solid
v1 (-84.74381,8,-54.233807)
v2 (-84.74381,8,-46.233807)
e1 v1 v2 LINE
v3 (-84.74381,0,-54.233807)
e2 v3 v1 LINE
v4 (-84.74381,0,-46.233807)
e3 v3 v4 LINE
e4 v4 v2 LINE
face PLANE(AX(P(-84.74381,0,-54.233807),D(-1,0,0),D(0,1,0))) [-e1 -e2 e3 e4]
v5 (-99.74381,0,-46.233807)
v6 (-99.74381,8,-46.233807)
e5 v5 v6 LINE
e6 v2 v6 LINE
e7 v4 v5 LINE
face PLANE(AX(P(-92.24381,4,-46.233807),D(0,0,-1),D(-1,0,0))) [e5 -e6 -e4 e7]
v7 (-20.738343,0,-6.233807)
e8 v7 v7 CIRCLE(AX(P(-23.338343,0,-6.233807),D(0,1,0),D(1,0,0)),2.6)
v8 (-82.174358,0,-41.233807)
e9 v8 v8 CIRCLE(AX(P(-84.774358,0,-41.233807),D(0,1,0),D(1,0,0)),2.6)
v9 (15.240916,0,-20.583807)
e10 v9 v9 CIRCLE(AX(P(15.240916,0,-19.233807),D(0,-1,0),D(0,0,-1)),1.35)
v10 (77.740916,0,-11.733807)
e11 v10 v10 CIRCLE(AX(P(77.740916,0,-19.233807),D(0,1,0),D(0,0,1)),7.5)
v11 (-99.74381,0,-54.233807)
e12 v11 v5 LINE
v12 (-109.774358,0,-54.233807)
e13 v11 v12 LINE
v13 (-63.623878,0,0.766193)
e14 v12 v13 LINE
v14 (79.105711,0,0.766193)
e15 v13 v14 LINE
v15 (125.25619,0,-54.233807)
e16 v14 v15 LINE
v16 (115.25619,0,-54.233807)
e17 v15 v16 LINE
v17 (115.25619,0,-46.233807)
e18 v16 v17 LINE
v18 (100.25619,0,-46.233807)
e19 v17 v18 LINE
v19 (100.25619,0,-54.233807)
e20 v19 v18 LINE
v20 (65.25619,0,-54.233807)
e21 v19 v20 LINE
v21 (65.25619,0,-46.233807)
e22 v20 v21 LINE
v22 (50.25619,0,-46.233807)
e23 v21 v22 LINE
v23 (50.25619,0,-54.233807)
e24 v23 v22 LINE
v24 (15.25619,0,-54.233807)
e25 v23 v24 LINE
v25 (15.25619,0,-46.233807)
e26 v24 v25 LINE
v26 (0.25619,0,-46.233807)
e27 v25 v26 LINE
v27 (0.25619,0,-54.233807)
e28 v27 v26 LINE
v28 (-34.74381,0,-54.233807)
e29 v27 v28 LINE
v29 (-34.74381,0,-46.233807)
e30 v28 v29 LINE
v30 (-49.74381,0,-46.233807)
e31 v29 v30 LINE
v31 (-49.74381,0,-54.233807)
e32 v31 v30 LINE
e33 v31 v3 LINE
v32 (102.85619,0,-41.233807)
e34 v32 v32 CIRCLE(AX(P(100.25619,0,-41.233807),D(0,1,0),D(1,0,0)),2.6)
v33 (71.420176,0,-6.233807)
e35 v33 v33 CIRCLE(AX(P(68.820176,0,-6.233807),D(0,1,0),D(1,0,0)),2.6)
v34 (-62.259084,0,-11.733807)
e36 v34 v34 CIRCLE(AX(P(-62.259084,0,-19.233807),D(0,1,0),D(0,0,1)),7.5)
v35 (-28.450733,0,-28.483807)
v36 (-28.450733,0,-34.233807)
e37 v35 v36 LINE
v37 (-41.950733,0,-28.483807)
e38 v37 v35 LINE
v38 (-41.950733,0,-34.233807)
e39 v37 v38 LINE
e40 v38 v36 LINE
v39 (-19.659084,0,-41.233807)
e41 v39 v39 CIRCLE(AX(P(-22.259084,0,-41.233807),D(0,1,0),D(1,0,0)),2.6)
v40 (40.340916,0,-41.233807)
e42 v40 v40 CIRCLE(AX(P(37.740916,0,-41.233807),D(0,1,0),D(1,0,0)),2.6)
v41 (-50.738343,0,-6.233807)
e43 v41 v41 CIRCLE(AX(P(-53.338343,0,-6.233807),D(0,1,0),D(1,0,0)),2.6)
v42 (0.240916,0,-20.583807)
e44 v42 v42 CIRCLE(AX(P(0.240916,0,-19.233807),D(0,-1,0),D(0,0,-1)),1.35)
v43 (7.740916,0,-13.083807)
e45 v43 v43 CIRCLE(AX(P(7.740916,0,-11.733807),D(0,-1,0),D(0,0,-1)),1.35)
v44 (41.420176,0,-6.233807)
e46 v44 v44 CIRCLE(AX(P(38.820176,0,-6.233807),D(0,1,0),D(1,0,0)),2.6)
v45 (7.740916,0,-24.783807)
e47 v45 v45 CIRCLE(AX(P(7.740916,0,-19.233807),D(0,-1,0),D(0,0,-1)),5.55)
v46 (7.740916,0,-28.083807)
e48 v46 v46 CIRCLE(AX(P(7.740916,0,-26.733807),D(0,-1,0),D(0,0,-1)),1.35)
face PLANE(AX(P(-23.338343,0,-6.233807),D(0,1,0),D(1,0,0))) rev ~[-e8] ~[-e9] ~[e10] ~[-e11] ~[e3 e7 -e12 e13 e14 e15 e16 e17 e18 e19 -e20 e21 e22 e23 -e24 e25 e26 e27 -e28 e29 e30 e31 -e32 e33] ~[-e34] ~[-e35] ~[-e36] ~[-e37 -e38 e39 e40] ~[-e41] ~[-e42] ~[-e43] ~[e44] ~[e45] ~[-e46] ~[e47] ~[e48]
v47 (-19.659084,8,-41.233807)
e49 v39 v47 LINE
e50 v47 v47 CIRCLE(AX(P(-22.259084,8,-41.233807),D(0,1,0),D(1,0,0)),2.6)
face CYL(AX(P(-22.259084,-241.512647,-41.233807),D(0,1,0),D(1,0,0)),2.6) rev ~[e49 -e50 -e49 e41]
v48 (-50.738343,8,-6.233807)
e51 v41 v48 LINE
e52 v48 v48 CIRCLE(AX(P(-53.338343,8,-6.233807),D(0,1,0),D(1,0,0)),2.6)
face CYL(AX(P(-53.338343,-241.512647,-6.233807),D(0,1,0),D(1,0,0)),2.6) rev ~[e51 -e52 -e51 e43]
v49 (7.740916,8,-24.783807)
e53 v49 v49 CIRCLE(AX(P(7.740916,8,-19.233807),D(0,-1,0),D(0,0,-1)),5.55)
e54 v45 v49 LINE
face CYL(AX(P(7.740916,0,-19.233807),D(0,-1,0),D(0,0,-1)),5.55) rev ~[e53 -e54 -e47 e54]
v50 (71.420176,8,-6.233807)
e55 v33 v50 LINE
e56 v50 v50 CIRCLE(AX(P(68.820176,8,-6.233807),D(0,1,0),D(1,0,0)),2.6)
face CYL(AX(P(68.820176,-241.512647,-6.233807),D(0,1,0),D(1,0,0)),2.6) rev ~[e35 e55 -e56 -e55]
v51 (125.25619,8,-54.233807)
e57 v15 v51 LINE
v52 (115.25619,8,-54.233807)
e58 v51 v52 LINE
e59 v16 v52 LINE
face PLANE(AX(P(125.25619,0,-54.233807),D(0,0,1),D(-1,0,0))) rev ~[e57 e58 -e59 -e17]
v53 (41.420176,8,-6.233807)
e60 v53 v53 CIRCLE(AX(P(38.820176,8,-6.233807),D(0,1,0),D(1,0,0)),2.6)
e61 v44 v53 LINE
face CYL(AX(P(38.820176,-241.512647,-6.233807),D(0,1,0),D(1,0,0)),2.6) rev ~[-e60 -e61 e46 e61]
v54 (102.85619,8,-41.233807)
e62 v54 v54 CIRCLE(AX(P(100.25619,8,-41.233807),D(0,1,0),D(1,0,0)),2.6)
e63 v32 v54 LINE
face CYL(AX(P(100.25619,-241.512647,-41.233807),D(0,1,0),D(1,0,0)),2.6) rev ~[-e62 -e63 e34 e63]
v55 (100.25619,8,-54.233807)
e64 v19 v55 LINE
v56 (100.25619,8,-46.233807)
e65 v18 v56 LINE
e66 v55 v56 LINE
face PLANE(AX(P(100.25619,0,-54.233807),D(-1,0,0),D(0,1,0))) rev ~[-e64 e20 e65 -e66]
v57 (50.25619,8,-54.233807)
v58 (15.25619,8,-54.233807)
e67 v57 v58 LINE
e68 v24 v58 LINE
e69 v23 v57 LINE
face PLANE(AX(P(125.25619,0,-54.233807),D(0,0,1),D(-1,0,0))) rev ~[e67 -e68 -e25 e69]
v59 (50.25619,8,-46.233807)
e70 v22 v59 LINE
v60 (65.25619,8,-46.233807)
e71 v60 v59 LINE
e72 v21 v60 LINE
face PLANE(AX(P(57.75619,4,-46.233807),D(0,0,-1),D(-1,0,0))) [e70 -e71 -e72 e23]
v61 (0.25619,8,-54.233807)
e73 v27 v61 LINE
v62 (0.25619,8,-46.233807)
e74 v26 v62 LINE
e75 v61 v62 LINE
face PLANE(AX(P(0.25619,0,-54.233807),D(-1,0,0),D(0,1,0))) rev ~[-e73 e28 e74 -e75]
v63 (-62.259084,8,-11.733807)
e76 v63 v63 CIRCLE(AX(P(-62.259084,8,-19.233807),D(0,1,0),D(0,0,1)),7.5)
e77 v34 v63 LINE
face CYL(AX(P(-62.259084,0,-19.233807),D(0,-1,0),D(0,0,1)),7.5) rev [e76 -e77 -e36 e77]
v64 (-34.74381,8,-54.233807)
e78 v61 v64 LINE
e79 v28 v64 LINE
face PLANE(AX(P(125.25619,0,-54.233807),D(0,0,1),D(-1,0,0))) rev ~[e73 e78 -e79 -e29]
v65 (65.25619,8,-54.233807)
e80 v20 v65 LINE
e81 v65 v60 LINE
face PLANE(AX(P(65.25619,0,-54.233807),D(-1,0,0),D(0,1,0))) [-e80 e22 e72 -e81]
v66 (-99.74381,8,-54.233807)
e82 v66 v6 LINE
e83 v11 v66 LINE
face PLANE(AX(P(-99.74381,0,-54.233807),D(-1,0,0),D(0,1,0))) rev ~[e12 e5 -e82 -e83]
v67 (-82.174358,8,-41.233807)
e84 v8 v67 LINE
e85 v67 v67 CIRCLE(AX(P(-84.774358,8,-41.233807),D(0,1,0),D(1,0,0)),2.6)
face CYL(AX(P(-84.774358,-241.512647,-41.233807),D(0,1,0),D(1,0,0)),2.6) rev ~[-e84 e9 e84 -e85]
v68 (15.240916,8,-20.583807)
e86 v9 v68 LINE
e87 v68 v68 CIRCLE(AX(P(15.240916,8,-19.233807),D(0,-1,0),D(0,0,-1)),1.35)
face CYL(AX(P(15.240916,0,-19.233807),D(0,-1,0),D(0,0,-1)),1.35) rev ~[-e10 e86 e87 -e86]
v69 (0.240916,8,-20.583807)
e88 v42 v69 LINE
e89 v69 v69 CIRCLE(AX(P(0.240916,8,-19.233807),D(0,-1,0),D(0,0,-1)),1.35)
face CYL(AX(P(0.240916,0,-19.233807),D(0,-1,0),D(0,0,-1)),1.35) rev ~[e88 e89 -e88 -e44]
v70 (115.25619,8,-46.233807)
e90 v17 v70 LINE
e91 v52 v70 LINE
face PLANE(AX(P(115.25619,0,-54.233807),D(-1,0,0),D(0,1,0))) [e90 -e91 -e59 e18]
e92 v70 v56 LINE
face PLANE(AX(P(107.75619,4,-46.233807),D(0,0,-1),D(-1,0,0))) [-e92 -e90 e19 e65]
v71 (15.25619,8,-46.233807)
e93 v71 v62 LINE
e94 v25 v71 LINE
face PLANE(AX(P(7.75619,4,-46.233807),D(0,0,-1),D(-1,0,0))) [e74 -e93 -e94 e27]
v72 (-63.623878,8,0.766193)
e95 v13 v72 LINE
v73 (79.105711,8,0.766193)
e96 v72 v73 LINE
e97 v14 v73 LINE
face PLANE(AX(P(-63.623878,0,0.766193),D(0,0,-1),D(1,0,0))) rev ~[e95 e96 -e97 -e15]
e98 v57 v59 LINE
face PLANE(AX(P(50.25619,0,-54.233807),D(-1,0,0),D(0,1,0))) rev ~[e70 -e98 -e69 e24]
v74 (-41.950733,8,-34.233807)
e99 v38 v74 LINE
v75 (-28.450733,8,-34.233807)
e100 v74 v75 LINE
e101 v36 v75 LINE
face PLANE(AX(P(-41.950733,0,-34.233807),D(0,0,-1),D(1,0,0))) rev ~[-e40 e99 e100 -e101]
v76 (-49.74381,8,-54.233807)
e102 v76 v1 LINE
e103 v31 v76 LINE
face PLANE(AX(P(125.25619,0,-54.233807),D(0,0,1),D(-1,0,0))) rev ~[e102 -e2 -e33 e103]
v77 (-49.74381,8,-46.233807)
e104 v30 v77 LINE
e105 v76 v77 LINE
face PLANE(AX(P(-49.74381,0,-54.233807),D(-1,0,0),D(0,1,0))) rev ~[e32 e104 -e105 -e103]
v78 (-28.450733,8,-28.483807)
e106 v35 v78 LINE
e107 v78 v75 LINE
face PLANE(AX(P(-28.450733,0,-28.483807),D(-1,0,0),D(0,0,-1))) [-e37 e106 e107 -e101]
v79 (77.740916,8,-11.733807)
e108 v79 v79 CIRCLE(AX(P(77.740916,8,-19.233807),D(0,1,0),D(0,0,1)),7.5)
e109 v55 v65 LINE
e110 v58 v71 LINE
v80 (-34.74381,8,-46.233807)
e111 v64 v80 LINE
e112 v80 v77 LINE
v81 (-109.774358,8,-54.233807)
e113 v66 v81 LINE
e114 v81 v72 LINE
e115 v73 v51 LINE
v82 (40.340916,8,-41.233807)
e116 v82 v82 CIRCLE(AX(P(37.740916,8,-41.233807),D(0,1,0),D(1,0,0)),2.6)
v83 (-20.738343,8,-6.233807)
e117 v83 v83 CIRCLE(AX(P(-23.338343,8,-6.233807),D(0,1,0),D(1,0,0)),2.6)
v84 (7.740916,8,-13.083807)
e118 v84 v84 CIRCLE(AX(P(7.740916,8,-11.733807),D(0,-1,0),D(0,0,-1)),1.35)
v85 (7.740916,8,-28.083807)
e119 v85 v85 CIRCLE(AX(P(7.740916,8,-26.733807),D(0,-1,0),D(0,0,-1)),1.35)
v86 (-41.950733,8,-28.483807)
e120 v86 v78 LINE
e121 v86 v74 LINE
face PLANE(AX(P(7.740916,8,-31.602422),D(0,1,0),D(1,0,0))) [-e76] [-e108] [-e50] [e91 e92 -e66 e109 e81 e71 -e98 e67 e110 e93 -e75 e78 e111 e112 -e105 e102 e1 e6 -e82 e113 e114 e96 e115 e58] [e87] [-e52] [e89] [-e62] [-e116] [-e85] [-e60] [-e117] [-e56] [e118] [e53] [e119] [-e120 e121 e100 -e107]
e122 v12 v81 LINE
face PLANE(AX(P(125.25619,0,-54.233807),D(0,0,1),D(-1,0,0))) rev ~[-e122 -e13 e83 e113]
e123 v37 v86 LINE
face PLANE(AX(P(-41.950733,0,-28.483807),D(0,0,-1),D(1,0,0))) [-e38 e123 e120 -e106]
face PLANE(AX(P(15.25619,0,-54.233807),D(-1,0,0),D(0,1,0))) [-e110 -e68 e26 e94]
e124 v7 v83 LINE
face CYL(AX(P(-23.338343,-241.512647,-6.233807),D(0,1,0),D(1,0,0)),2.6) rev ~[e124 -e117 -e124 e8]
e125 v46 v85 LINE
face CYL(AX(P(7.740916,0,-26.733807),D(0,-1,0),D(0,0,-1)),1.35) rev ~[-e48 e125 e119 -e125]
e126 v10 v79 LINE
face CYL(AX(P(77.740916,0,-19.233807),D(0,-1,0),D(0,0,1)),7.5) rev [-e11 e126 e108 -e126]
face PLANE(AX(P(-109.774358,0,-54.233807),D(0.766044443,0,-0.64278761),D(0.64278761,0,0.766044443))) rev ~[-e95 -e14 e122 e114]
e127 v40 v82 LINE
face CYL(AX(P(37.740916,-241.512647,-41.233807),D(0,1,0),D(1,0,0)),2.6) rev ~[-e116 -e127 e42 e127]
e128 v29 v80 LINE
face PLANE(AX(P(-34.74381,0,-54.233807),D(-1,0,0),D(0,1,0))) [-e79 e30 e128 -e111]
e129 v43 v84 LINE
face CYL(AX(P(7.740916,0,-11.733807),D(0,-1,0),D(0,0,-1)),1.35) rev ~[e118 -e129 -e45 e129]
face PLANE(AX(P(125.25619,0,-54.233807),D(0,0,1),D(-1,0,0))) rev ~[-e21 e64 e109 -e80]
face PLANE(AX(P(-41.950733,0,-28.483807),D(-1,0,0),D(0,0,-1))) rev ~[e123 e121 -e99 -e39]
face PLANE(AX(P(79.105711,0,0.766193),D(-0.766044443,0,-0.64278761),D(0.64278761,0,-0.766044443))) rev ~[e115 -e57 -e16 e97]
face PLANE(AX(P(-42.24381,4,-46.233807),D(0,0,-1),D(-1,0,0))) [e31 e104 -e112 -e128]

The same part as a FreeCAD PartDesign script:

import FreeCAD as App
import Part
import Sketcher

V = App.Vector
Q = App.Units.Quantity

doc = App.newDocument("Part")
body = doc.addObject("PartDesign::Body", "Body")

# Sketch on XZ plane
sketch1 = doc.addObject("Sketcher::SketchObject", "Sketch")
body.addObject(sketch1)
sketch1.AttachmentSupport = (doc.XZ_Plane, [""])
sketch1.MapMode = "FlatFace"
sketch1.addGeometry([
    Part.LineSegment(V(-109.774358, -54.233807, 0), V(-63.623878, 0.766193, 0)),  # 0
    Part.LineSegment(V(-63.623878, 0.766193, 0), V(79.105711, 0.766193, 0)),  # 1
    Part.LineSegment(V(79.105711, 0.766193, 0), V(125.25619, -54.233807, 0)),  # 2
    Part.LineSegment(V(125.25619, -54.233807, 0), V(-109.774358, -54.233807, 0)),  # 3
    Part.Circle(V(-62.259084, -19.233807, 0), V(0, 0, 1), 7.5),  # 4
    Part.Circle(V(7.740916, -19.233807, 0), V(0, 0, 1), 5.187482),  # 5
    Part.Circle(V(77.740916, -19.233807, 0), V(0, 0, 1), 7.5),  # 6
    Part.LineSegment(V(-28.450733, -28.483807, 0), V(-41.950733, -28.483807, 0)),  # 7
    Part.LineSegment(V(-41.950733, -28.483807, 0), V(-41.950733, -34.233807, 0)),  # 8
    Part.LineSegment(V(-41.950733, -34.233807, 0), V(-28.450733, -34.233807, 0)),  # 9
    Part.LineSegment(V(-28.450733, -34.233807, 0), V(-28.450733, -28.483807, 0)),  # 10
], False)
sketch1.addConstraint([
    Sketcher.Constraint("Coincident", 0, 2, 1, 1),
    Sketcher.Constraint("Coincident", 1, 2, 2, 1),
    Sketcher.Constraint("Coincident", 2, 2, 3, 1),
    Sketcher.Constraint("Coincident", 3, 2, 0, 1),
    Sketcher.Constraint("Coincident", 7, 2, 8, 1),
    Sketcher.Constraint("Coincident", 8, 2, 9, 1),
    Sketcher.Constraint("Coincident", 9, 2, 10, 1),
    Sketcher.Constraint("Coincident", 10, 2, 7, 1),
    Sketcher.Constraint("Horizontal", 1),
    Sketcher.Constraint("Horizontal", 3),
    Sketcher.Constraint("Horizontal", 7),
    Sketcher.Constraint("Vertical", 8),
    Sketcher.Constraint("Horizontal", 9),
    Sketcher.Constraint("Vertical", 10),
    Sketcher.Constraint("Equal", 4, 6),
    Sketcher.Constraint("Horizontal", 4, 3, 5, 3),
    Sketcher.Constraint("Horizontal", 5, 3, 6, 3),
    Sketcher.Constraint("Equal", 0, 2),
    Sketcher.Constraint("Diameter", 4, 15.0),
    Sketcher.Constraint("Angle", 0, Q("50 deg")),
    Sketcher.Constraint("DistanceX", 7, 2, 7, 1, 13.5),
    Sketcher.Constraint("DistanceX", 4, 3, 5, 3, 70.0),
    Sketcher.Constraint("DistanceX", 5, 3, 6, 3, 70.0),
    Sketcher.Constraint("DistanceY", 4, 3, 0, 2, 20.0),
    Sketcher.Constraint("DistanceY", 2, 2, 6, 3, 35.0),
    Sketcher.Constraint("DistanceY", 8, 2, 4, 3, 15.0),
    Sketcher.Constraint("DistanceY", 8, 2, 8, 1, 5.75),
    Sketcher.Constraint("Diameter", 5, 10.374963),
    Sketcher.Constraint("DistanceX", 1, 1, 1, 2, 142.729589),
    Sketcher.Constraint("DistanceX", 0, 2, -1, 1, 63.623878),
    Sketcher.Constraint("DistanceX", 4, 3, 7, 2, 20.308351),
    Sketcher.Constraint("DistanceX", 4, 3, -1, 1, 62.259084),
    Sketcher.Constraint("DistanceY", 4, 3, -1, 1, 19.233807),
])
pad1 = doc.addObject("PartDesign::Pad", "Pad")
body.addObject(pad1)
pad1.Profile = sketch1
pad1.Length = 8
pad1.Reversed = True

# Sketch on XZ plane
sketch2 = doc.addObject("Sketcher::SketchObject", "Sketch001")
body.addObject(sketch2)
sketch2.AttachmentSupport = (doc.XZ_Plane, [""])
sketch2.MapMode = "FlatFace"
sketch2.addGeometry([
    Part.Circle(V(68.820176, -6.233807, 0), V(0, 0, 1), 2.6),  # 0
    Part.Circle(V(38.820176, -6.233807, 0), V(0, 0, 1), 2.6),  # 1
    Part.Circle(V(37.740916, -41.233807, 0), V(0, 0, 1), 2.6),  # 2
    Part.Circle(V(100.25619, -41.233807, 0), V(0, 0, 1), 2.6),  # 3
    Part.Circle(V(-22.259084, -41.233807, 0), V(0, 0, 1), 2.6),  # 4
    Part.Circle(V(-23.338343, -6.233807, 0), V(0, 0, 1), 2.6),  # 5
    Part.Circle(V(-53.338343, -6.233807, 0), V(0, 0, 1), 2.6),  # 6
    Part.Circle(V(-84.774358, -41.233807, 0), V(0, 0, 1), 2.6),  # 7
], False)
sketch2.addConstraint([
    Sketcher.Constraint("Equal", 0, 1),
    Sketcher.Constraint("Equal", 1, 2),
    Sketcher.Constraint("Equal", 2, 3),
    Sketcher.Constraint("Equal", 3, 4),
    Sketcher.Constraint("Equal", 4, 5),
    Sketcher.Constraint("Equal", 5, 6),
    Sketcher.Constraint("Equal", 6, 7),
    Sketcher.Constraint("Horizontal", 0, 3, 1, 3),
    Sketcher.Constraint("Horizontal", 2, 3, 3, 3),
    Sketcher.Constraint("Horizontal", 3, 3, 4, 3),
    Sketcher.Constraint("Horizontal", 1, 3, 5, 3),
    Sketcher.Constraint("Horizontal", 5, 3, 6, 3),
    Sketcher.Constraint("Horizontal", 4, 3, 7, 3),
    Sketcher.Constraint("Diameter", 0, 5.2),
    Sketcher.Constraint("DistanceX", 1, 3, 0, 3, 30.0),
    Sketcher.Constraint("DistanceY", 2, 3, 1, 3, 35.0),
    Sketcher.Constraint("DistanceX", 4, 3, 2, 3, 60.0),
    Sketcher.Constraint("DistanceX", 6, 3, 5, 3, 30.0),
    Sketcher.Constraint("DistanceX", -1, 1, 3, 3, 100.25619),
    Sketcher.Constraint("DistanceX", 2, 3, 1, 3, 1.079259),
    Sketcher.Constraint("DistanceX", 5, 3, 4, 3, 1.079259),
    Sketcher.Constraint("DistanceX", -1, 1, 0, 3, 68.820176),
    Sketcher.Constraint("DistanceY", 0, 3, -1, 1, 6.233807),
    Sketcher.Constraint("DistanceX", 7, 3, -1, 1, 84.774358),
])
doc.recompute()
hole = doc.addObject("PartDesign::Hole", "Hole")
body.addObject(hole)
hole.Profile = sketch2
hole.ThreadType = "None"
hole.Diameter = 5.2
hole.DepthType = "ThroughAll"

# Sketch on XZ plane
sketch3 = doc.addObject("Sketcher::SketchObject", "Sketch002")
body.addObject(sketch3)
sketch3.AttachmentSupport = (doc.XZ_Plane, [""])
sketch3.MapMode = "FlatFace"
sketch3.addGeometry([
    Part.Circle(V(7.740916, -19.233807, 0), V(0, 0, 1), 5.55),  # 0
    Part.Circle(V(15.240916, -19.233807, 0), V(0, 0, 1), 1.35),  # 1
    Part.Circle(V(7.740916, -26.733807, 0), V(0, 0, 1), 1.35),  # 2
    Part.Circle(V(0.240916, -19.233807, 0), V(0, 0, 1), 1.35),  # 3
    Part.Circle(V(7.740916, -11.733807, 0), V(0, 0, 1), 1.35),  # 4
], False)
sketch3.addConstraint([
    Sketcher.Constraint("Equal", 1, 2),
    Sketcher.Constraint("Equal", 2, 3),
    Sketcher.Constraint("Equal", 3, 4),
    Sketcher.Constraint("Horizontal", 0, 3, 1, 3),
    Sketcher.Constraint("Horizontal", 1, 3, 3, 3),
    Sketcher.Constraint("Vertical", 0, 3, 2, 3),
    Sketcher.Constraint("Vertical", 2, 3, 4, 3),
    Sketcher.Constraint("Diameter", 0, 11.1),
    Sketcher.Constraint("Diameter", 1, 2.7),
    Sketcher.Constraint("DistanceX", 3, 3, 1, 3, 15.0),
    Sketcher.Constraint("DistanceY", 2, 3, 4, 3, 15.0),
    Sketcher.Constraint("DistanceX", 0, 3, 1, 3, 7.5),
    Sketcher.Constraint("DistanceY", 2, 3, 0, 3, 7.5),
    Sketcher.Constraint("DistanceX", -1, 1, 0, 3, 7.740916),
    Sketcher.Constraint("DistanceY", 0, 3, -1, 1, 19.233807),
])
pocket1 = doc.addObject("PartDesign::Pocket", "Pocket")
body.addObject(pocket1)
pocket1.Profile = sketch3
pocket1.Length = 10

# Sketch on XY plane
sketch4 = doc.addObject("Sketcher::SketchObject", "Sketch003")
body.addObject(sketch4)
sketch4.AttachmentSupport = (doc.XY_Plane, [""])
sketch4.MapMode = "FlatFace"
sketch4.AttachmentOffset = App.Placement(V(0, 0, -54.233807), App.Rotation())
sketch4.addGeometry([
    Part.LineSegment(V(115.25619, 8, 0), V(115.25619, 0, 0)),  # 0
    Part.LineSegment(V(115.25619, 0, 0), V(100.25619, 0, 0)),  # 1
    Part.LineSegment(V(100.25619, 0, 0), V(100.25619, 8, 0)),  # 2
    Part.LineSegment(V(100.25619, 8, 0), V(115.25619, 8, 0)),  # 3
    Part.LineSegment(V(65.25619, 8, 0), V(65.25619, 0, 0)),  # 4
    Part.LineSegment(V(65.25619, 0, 0), V(50.25619, 0, 0)),  # 5
    Part.LineSegment(V(50.25619, 0, 0), V(50.25619, 8, 0)),  # 6
    Part.LineSegment(V(50.25619, 8, 0), V(65.25619, 8, 0)),  # 7
    Part.LineSegment(V(15.25619, 8, 0), V(15.25619, 0, 0)),  # 8
    Part.LineSegment(V(15.25619, 0, 0), V(0.25619, 0, 0)),  # 9
    Part.LineSegment(V(0.25619, 0, 0), V(0.25619, 8, 0)),  # 10
    Part.LineSegment(V(0.25619, 8, 0), V(15.25619, 8, 0)),  # 11
    Part.LineSegment(V(-34.74381, 8, 0), V(-34.74381, 0, 0)),  # 12
    Part.LineSegment(V(-34.74381, 0, 0), V(-49.74381, 0, 0)),  # 13
    Part.LineSegment(V(-49.74381, 0, 0), V(-49.74381, 8, 0)),  # 14
    Part.LineSegment(V(-49.74381, 8, 0), V(-34.74381, 8, 0)),  # 15
    Part.LineSegment(V(-84.74381, 8, 0), V(-84.74381, 0, 0)),  # 16
    Part.LineSegment(V(-84.74381, 0, 0), V(-99.74381, 0, 0)),  # 17
    Part.LineSegment(V(-99.74381, 0, 0), V(-99.74381, 8, 0)),  # 18
    Part.LineSegment(V(-99.74381, 8, 0), V(-84.74381, 8, 0)),  # 19
], False)
sketch4.addConstraint([
    Sketcher.Constraint("Coincident", 0, 2, 1, 1),
    Sketcher.Constraint("Coincident", 1, 2, 2, 1),
    Sketcher.Constraint("Coincident", 2, 2, 3, 1),
    Sketcher.Constraint("Coincident", 3, 2, 0, 1),
    Sketcher.Constraint("Coincident", 4, 2, 5, 1),
    Sketcher.Constraint("Coincident", 5, 2, 6, 1),
    Sketcher.Constraint("Coincident", 6, 2, 7, 1),
    Sketcher.Constraint("Coincident", 7, 2, 4, 1),
    Sketcher.Constraint("Coincident", 8, 2, 9, 1),
    Sketcher.Constraint("Coincident", 9, 2, 10, 1),
    Sketcher.Constraint("Coincident", 10, 2, 11, 1),
    Sketcher.Constraint("Coincident", 11, 2, 8, 1),
    Sketcher.Constraint("Coincident", 12, 2, 13, 1),
    Sketcher.Constraint("Coincident", 13, 2, 14, 1),
    Sketcher.Constraint("Coincident", 14, 2, 15, 1),
    Sketcher.Constraint("Coincident", 15, 2, 12, 1),
    Sketcher.Constraint("Coincident", 16, 2, 17, 1),
    Sketcher.Constraint("Coincident", 17, 2, 18, 1),
    Sketcher.Constraint("Coincident", 18, 2, 19, 1),
    Sketcher.Constraint("Coincident", 19, 2, 16, 1),
    Sketcher.Constraint("Vertical", 0),
    Sketcher.Constraint("Horizontal", 1),
    Sketcher.Constraint("Vertical", 2),
    Sketcher.Constraint("Horizontal", 3),
    Sketcher.Constraint("Vertical", 4),
    Sketcher.Constraint("Horizontal", 5),
    Sketcher.Constraint("Vertical", 6),
    Sketcher.Constraint("Horizontal", 7),
    Sketcher.Constraint("Vertical", 8),
    Sketcher.Constraint("Horizontal", 9),
    Sketcher.Constraint("Vertical", 10),
    Sketcher.Constraint("Horizontal", 11),
    Sketcher.Constraint("Vertical", 12),
    Sketcher.Constraint("Horizontal", 13),
    Sketcher.Constraint("Vertical", 14),
    Sketcher.Constraint("Horizontal", 15),
    Sketcher.Constraint("Vertical", 16),
    Sketcher.Constraint("Horizontal", 17),
    Sketcher.Constraint("Vertical", 18),
    Sketcher.Constraint("Horizontal", 19),
    Sketcher.Constraint("PointOnObject", 0, 2, -1),
    Sketcher.Constraint("PointOnObject", 4, 2, -1),
    Sketcher.Constraint("PointOnObject", 8, 2, -1),
    Sketcher.Constraint("PointOnObject", 12, 2, -1),
    Sketcher.Constraint("PointOnObject", 16, 2, -1),
    Sketcher.Constraint("Horizontal", 3, 2, 6, 2),
    Sketcher.Constraint("Horizontal", 7, 2, 10, 2),
    Sketcher.Constraint("Horizontal", 11, 2, 14, 2),
    Sketcher.Constraint("Horizontal", 15, 2, 18, 2),
    Sketcher.Constraint("Equal", 3, 5),
    Sketcher.Constraint("Equal", 7, 9),
    Sketcher.Constraint("Equal", 11, 13),
    Sketcher.Constraint("Equal", 15, 17),
    Sketcher.Constraint("DistanceX", 1, 2, 1, 1, 15.0),
    Sketcher.Constraint("DistanceY", 0, 2, 0, 1, 8.0),
    Sketcher.Constraint("DistanceX", 4, 2, 1, 2, 35.0),
    Sketcher.Constraint("DistanceX", 8, 2, 5, 2, 35.0),
    Sketcher.Constraint("DistanceX", 12, 2, 9, 2, 35.0),
    Sketcher.Constraint("DistanceX", 16, 2, 13, 2, 35.0),
    Sketcher.Constraint("DistanceX", -1, 1, 0, 2, 115.25619),
])
pocket2 = doc.addObject("PartDesign::Pocket", "Pocket001")
body.addObject(pocket2)
pocket2.Profile = sketch4
pocket2.Length = 8
pocket2.Reversed = True

doc.recompute()
